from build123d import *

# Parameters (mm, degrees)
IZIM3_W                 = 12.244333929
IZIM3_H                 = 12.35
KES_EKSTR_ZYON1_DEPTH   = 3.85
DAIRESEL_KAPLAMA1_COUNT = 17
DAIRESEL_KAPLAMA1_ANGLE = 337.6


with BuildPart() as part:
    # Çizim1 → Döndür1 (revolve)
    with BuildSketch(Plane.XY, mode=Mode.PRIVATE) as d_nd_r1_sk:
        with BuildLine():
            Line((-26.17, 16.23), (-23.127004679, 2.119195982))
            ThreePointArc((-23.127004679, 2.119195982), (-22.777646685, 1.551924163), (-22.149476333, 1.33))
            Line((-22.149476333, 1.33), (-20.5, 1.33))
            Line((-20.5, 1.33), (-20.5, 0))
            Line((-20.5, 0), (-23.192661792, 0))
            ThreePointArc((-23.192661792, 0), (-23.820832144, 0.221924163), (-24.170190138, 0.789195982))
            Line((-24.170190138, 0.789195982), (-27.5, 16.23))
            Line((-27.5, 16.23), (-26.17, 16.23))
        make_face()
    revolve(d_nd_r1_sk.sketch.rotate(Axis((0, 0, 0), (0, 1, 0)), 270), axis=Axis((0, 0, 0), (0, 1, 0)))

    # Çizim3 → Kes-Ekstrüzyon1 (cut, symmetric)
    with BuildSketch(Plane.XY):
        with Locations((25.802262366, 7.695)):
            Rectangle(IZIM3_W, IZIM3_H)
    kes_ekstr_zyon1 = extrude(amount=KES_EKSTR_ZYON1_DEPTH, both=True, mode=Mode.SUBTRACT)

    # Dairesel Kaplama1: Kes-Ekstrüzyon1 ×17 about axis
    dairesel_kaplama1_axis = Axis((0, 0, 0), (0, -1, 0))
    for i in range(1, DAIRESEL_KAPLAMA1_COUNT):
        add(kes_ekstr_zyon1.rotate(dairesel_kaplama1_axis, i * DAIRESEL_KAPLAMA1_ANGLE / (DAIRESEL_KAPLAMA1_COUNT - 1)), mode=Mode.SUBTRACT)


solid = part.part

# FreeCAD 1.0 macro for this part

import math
import FreeCAD as App
import Part
import Sketcher
from FreeCAD import Vector
Q = App.Units.Quantity


def add_polygon(sketch, points):
    """Adds a closed chain of lines whose ends are joined by coincident constraints."""
    first, n = sketch.GeometryCount, len(points)
    for a, b in zip(points, points[1:] + points[:1]):
        sketch.addGeometry(Part.LineSegment(App.Vector(*a, 0), App.Vector(*b, 0)), False)
    for i in range(n):
        sketch.addConstraint(Sketcher.Constraint("Coincident", first + i, 2, first + (i + 1) % n, 1))

doc = App.newDocument("Part")
body = doc.addObject("PartDesign::Body", "Body")

sketch1 = body.newObject("Sketcher::SketchObject", "Sketch")
sketch1.AttachmentSupport = (doc.getObject("XY_Plane"), [""])
sketch1.MapMode = "FlatFace"
sketch1.addGeometry(Part.LineSegment(Vector(-23.127005, 2.119196, 0), Vector(-26.17, 16.23, 0)), False)
sketch1.addGeometry(Part.LineSegment(Vector(-26.17, 16.23, 0), Vector(-27.5, 16.23, 0)), False)
sketch1.addGeometry(Part.LineSegment(Vector(-27.5, 16.23, 0), Vector(-24.17019, 0.789196, 0)), False)
sketch1.addGeometry(Part.ArcOfCircle(Part.Circle(Vector(-23.192662, 1, 0), Vector(0, 0, 1), 1), math.radians(-167.830526), math.radians(-90)), False)
sketch1.addGeometry(Part.LineSegment(Vector(-23.192662, 0, 0), Vector(-20.5, 0, 0)), False)
sketch1.addGeometry(Part.LineSegment(Vector(-20.5, 0, 0), Vector(-20.5, 1.33, 0)), False)
sketch1.addGeometry(Part.LineSegment(Vector(-20.5, 1.33, 0), Vector(-22.149476, 1.33, 0)), False)
sketch1.addGeometry(Part.ArcOfCircle(Part.Circle(Vector(-22.149476, 2.33, 0), Vector(0, 0, 1), 1), math.radians(-167.830526), math.radians(-90)), False)
sketch1.addConstraint(Sketcher.Constraint("Coincident", 0, 2, 1, 1))
sketch1.addConstraint(Sketcher.Constraint("Coincident", 1, 2, 2, 1))
sketch1.addConstraint(Sketcher.Constraint("Tangent", 2, 2, 3, 1))
sketch1.addConstraint(Sketcher.Constraint("Tangent", 3, 2, 4, 1))
sketch1.addConstraint(Sketcher.Constraint("Coincident", 4, 2, 5, 1))
sketch1.addConstraint(Sketcher.Constraint("Coincident", 5, 2, 6, 1))
sketch1.addConstraint(Sketcher.Constraint("Tangent", 6, 2, 7, 2))
sketch1.addConstraint(Sketcher.Constraint("Tangent", 7, 1, 0, 1))
sketch1.addConstraint(Sketcher.Constraint("Horizontal", 1))
sketch1.addConstraint(Sketcher.Constraint("Horizontal", 4))
sketch1.addConstraint(Sketcher.Constraint("Vertical", 5))
sketch1.addConstraint(Sketcher.Constraint("Horizontal", 6))
sketch1.addConstraint(Sketcher.Constraint("Equal", 3, 7))
sketch1.addConstraint(Sketcher.Constraint("PointOnObject", 3, 2, -1))
sketch1.addConstraint(Sketcher.Constraint("Parallel", 0, 2))
sketch1.addConstraint(Sketcher.Constraint("Equal", 1, 5))
sketch1.addConstraint(Sketcher.Constraint("Radius", 3, Q("1 mm")))
sketch1.addConstraint(Sketcher.Constraint("DistanceX", 1, 2, 1, 1, Q("1.33 mm")))
sketch1.addConstraint(Sketcher.Constraint("DistanceX", 1, 2, -1, 1, Q("27.5 mm")))
sketch1.addConstraint(Sketcher.Constraint("DistanceX", 4, 2, -1, 1, Q("20.5 mm")))
sketch1.addConstraint(Sketcher.Constraint("DistanceY", 7, 3, 0, 2, Q("13.9 mm")))
sketch1.addConstraint(Sketcher.Constraint("DistanceX", 4, 1, 4, 2, Q("2.692662 mm")))
revolution = body.newObject("PartDesign::Revolution", "Revolution")
revolution.Profile = sketch1
revolution.ReferenceAxis = (sketch1, ["V_Axis"])
revolution.Angle = 360

sketch2 = body.newObject("Sketcher::SketchObject", "Sketch001")
sketch2.AttachmentSupport = (doc.getObject("XY_Plane"), [""])
sketch2.MapMode = "FlatFace"
add_polygon(sketch2, [(19.680095, 13.87), (19.680095, 1.52), (31.924429, 1.52), (31.924429, 13.87)])
sketch2.addConstraint(Sketcher.Constraint("Vertical", 0))
sketch2.addConstraint(Sketcher.Constraint("Horizontal", 1))
sketch2.addConstraint(Sketcher.Constraint("Vertical", 2))
sketch2.addConstraint(Sketcher.Constraint("Horizontal", 3))
sketch2.addConstraint(Sketcher.Constraint("DistanceY", 0, 2, 0, 1, Q("12.35 mm")))
sketch2.addConstraint(Sketcher.Constraint("DistanceY", -1, 1, 0, 2, Q("1.52 mm")))
sketch2.addConstraint(Sketcher.Constraint("DistanceX", 1, 1, 1, 2, Q("12.244334 mm")))
sketch2.addConstraint(Sketcher.Constraint("DistanceX", -1, 1, 1, 2, Q("31.924429 mm")))
pocket1 = body.newObject("PartDesign::Pocket", "Pocket")
pocket1.Profile = sketch2
pocket1.Length = 7.7
pocket1.Midplane = True
doc.recompute()

polarpattern = body.newObject("PartDesign::PolarPattern", "PolarPattern")
polarpattern.Originals = [pocket1]
polarpattern.Axis = (doc.getObject("Y_Axis"), [""])
polarpattern.Angle = 337.6
polarpattern.Occurrences = 17
polarpattern.Reversed = True
body.Tip = polarpattern

doc.recompute()
